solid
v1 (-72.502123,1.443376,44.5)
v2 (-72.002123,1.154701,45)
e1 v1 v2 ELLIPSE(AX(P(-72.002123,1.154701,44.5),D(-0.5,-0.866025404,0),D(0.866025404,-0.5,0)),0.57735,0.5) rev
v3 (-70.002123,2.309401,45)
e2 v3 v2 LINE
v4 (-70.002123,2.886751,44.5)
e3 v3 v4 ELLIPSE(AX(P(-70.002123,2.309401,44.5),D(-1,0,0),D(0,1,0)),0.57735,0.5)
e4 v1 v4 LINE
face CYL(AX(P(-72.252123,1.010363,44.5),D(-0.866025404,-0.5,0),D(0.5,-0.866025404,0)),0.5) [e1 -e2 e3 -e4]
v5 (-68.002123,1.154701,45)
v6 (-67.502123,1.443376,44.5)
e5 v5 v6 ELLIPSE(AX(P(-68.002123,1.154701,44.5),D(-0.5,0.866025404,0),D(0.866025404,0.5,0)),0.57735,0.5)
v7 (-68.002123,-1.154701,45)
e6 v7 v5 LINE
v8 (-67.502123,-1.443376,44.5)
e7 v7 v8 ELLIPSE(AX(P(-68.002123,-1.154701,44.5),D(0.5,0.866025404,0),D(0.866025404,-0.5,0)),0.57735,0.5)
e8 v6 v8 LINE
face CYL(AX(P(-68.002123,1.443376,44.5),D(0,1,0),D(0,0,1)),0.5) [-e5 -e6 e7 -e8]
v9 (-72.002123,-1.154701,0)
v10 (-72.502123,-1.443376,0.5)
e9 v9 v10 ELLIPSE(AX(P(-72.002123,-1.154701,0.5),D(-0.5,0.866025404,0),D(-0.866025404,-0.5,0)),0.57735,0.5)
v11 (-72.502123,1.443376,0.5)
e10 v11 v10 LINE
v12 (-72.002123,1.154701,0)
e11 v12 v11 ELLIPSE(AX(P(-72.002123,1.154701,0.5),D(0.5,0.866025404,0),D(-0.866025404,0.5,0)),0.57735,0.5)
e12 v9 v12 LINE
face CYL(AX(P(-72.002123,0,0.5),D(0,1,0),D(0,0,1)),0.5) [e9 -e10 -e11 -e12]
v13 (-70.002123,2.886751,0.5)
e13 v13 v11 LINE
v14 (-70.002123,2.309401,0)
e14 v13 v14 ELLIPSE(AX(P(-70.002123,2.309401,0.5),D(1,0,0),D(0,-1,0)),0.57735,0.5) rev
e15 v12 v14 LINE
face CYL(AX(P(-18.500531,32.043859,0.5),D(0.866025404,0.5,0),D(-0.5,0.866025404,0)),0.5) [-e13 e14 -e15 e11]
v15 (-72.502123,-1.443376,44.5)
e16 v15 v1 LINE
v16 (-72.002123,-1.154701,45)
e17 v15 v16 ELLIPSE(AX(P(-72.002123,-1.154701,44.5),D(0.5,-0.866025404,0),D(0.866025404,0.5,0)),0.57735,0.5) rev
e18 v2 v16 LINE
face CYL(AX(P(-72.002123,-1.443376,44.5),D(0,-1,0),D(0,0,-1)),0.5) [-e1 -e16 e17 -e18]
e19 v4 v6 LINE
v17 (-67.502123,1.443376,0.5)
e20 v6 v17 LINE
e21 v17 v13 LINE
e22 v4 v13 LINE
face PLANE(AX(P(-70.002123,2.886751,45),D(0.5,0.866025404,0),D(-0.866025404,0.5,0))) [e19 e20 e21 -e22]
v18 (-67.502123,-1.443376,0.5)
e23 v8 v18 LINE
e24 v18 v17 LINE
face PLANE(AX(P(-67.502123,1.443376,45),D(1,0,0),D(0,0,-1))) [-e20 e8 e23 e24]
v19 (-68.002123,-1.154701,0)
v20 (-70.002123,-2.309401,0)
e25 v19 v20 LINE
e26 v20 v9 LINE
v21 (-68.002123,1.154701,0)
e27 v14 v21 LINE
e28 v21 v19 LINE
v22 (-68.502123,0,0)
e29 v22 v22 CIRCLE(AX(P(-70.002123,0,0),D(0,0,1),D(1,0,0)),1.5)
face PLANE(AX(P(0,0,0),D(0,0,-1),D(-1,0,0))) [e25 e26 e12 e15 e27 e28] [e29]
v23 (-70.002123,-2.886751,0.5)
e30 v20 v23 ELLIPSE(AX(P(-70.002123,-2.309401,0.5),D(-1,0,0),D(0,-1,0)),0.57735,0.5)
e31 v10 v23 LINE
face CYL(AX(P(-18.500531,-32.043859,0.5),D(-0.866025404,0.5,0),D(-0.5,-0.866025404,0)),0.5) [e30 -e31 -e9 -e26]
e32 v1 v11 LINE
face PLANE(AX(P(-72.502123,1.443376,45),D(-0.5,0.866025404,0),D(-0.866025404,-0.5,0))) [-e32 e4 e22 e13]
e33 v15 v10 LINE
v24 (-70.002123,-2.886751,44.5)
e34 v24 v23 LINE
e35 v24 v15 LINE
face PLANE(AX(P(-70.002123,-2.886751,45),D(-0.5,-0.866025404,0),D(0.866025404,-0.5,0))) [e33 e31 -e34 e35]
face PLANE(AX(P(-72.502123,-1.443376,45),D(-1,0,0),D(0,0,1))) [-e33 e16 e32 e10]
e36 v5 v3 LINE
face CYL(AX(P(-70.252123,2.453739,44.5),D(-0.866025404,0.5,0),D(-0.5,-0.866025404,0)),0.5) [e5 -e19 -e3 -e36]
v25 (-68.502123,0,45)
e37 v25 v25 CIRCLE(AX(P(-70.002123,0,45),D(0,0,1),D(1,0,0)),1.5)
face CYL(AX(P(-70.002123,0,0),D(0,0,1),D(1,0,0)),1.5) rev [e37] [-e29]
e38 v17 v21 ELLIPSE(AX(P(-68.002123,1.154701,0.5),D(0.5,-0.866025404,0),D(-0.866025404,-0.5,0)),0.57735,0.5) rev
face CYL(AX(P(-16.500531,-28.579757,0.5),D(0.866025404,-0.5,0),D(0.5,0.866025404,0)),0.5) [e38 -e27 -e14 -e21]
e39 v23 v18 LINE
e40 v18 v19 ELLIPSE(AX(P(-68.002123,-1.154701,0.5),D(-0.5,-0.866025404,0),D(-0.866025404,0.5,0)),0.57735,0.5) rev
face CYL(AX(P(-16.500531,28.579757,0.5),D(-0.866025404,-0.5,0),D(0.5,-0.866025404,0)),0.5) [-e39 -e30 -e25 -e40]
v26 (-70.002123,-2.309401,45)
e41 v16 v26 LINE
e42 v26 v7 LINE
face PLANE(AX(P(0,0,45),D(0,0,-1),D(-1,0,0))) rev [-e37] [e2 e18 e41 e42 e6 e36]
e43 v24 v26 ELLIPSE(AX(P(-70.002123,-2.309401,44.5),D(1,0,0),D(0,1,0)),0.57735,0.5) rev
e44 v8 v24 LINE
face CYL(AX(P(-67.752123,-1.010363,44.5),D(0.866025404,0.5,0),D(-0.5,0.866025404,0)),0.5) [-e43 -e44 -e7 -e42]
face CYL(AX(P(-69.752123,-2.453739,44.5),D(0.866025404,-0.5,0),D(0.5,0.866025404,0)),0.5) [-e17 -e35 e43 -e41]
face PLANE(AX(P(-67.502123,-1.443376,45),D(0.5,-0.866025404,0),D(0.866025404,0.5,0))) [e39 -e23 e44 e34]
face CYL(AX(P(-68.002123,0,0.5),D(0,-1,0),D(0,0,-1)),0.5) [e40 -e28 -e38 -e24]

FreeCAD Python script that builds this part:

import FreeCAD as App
import Part
import Sketcher
Q = App.Units.Quantity


def edges_at(feature, points):
    """Names of the edges that pass closest to the given points."""
    edges = feature.Shape.Edges
    near = lambda p: min(range(len(edges)), key=lambda i: edges[i].distToShape(Part.Vertex(*p))[0])
    return sorted({f"Edge{near(p) + 1}" for p in points})


def add_polygon(sketch, points):
    """Adds a closed chain of lines whose ends are joined by coincident constraints."""
    first, n = sketch.GeometryCount, len(points)
    for a, b in zip(points, points[1:] + points[:1]):
        sketch.addGeometry(Part.LineSegment(App.Vector(*a, 0), App.Vector(*b, 0)), False)
    for i in range(n):
        sketch.addConstraint(Sketcher.Constraint("Coincident", first + i, 2, first + (i + 1) % n, 1))

doc = App.newDocument("Part")
body = doc.addObject("PartDesign::Body", "Body")

# Sketch on XY plane
sketch1 = body.newObject("Sketcher::SketchObject", "Sketch")
sketch1.AttachmentSupport = (doc.getObject("XY_Plane"), [""])
sketch1.MapMode = "FlatFace"
add_polygon(sketch1, [(-67.5, -1.4), (-70, -2.9), (-72.5, -1.4), (-72.5, 1.4), (-70, 2.9), (-67.5, 1.4)])  # lines 0-5
sketch1.addConstraint([
    Sketcher.Constraint("Vertical", 2),
    Sketcher.Constraint("Vertical", 5),
    Sketcher.Constraint("Symmetric", 0, 2, 3, 2, -1),
    Sketcher.Constraint("Parallel", 0, 3),
    Sketcher.Constraint("Parallel", 1, 4),
    Sketcher.Constraint("Horizontal", 2, 2, 4, 2),
    Sketcher.Constraint("Horizontal", 1, 2, 5, 2),
    Sketcher.Constraint("Angle", 0, Q("-150 deg")),
    Sketcher.Constraint("DistanceX", 2, 2, 4, 2, Q("5 mm")),
    Sketcher.Constraint("DistanceY", 2, 1, 2, 2, Q("2.886751 mm")),
    Sketcher.Constraint("DistanceX", 0, 2, -1, 1, Q("70.002123 mm")),
])
pad1 = body.newObject("PartDesign::Pad", "Pad")
pad1.Profile = sketch1
pad1.Length = 45
doc.recompute()

fillet = body.newObject("PartDesign::Fillet", "Fillet")
fillet.Base = (pad1, edges_at(pad1, [
    (-71.252, -2.165, 45),
    (-72.502, 0, 45),
    (-71.252, 2.165, 45),
    (-68.752, 2.165, 45),
    (-67.502, 0, 45),
    (-68.752, 2.165, 0),
    (-71.252, 2.165, 0),
    (-72.502, 0, 0),
    (-71.252, -2.165, 0),
    (-68.752, -2.165, 0),
    (-67.502, 0, 0),
    (-68.752, -2.165, 45),
]))
fillet.Radius = 0.5

# Sketch on XY plane
sketch2 = body.newObject("Sketcher::SketchObject", "Sketch001")
sketch2.AttachmentSupport = (doc.getObject("XY_Plane"), [""])
sketch2.MapMode = "FlatFace"
sketch2.AttachmentOffset = App.Placement(App.Vector(0, 0, 45), App.Rotation())
sketch2.addGeometry(Part.Circle(App.Vector(-70, 0, 0), App.Vector(0, 0, 1), 1.5), False)
sketch2.addConstraint([
    Sketcher.Constraint("PointOnObject", 0, 3, -1),
    Sketcher.Constraint("Diameter", 0, Q("3 mm")),
    Sketcher.Constraint("DistanceX", 0, 3, -1, 1, Q("70.002123 mm")),
])
pocket1 = body.newObject("PartDesign::Pocket", "Pocket")
pocket1.Profile = sketch2
pocket1.Type = "ThroughAll"

doc.recompute()
